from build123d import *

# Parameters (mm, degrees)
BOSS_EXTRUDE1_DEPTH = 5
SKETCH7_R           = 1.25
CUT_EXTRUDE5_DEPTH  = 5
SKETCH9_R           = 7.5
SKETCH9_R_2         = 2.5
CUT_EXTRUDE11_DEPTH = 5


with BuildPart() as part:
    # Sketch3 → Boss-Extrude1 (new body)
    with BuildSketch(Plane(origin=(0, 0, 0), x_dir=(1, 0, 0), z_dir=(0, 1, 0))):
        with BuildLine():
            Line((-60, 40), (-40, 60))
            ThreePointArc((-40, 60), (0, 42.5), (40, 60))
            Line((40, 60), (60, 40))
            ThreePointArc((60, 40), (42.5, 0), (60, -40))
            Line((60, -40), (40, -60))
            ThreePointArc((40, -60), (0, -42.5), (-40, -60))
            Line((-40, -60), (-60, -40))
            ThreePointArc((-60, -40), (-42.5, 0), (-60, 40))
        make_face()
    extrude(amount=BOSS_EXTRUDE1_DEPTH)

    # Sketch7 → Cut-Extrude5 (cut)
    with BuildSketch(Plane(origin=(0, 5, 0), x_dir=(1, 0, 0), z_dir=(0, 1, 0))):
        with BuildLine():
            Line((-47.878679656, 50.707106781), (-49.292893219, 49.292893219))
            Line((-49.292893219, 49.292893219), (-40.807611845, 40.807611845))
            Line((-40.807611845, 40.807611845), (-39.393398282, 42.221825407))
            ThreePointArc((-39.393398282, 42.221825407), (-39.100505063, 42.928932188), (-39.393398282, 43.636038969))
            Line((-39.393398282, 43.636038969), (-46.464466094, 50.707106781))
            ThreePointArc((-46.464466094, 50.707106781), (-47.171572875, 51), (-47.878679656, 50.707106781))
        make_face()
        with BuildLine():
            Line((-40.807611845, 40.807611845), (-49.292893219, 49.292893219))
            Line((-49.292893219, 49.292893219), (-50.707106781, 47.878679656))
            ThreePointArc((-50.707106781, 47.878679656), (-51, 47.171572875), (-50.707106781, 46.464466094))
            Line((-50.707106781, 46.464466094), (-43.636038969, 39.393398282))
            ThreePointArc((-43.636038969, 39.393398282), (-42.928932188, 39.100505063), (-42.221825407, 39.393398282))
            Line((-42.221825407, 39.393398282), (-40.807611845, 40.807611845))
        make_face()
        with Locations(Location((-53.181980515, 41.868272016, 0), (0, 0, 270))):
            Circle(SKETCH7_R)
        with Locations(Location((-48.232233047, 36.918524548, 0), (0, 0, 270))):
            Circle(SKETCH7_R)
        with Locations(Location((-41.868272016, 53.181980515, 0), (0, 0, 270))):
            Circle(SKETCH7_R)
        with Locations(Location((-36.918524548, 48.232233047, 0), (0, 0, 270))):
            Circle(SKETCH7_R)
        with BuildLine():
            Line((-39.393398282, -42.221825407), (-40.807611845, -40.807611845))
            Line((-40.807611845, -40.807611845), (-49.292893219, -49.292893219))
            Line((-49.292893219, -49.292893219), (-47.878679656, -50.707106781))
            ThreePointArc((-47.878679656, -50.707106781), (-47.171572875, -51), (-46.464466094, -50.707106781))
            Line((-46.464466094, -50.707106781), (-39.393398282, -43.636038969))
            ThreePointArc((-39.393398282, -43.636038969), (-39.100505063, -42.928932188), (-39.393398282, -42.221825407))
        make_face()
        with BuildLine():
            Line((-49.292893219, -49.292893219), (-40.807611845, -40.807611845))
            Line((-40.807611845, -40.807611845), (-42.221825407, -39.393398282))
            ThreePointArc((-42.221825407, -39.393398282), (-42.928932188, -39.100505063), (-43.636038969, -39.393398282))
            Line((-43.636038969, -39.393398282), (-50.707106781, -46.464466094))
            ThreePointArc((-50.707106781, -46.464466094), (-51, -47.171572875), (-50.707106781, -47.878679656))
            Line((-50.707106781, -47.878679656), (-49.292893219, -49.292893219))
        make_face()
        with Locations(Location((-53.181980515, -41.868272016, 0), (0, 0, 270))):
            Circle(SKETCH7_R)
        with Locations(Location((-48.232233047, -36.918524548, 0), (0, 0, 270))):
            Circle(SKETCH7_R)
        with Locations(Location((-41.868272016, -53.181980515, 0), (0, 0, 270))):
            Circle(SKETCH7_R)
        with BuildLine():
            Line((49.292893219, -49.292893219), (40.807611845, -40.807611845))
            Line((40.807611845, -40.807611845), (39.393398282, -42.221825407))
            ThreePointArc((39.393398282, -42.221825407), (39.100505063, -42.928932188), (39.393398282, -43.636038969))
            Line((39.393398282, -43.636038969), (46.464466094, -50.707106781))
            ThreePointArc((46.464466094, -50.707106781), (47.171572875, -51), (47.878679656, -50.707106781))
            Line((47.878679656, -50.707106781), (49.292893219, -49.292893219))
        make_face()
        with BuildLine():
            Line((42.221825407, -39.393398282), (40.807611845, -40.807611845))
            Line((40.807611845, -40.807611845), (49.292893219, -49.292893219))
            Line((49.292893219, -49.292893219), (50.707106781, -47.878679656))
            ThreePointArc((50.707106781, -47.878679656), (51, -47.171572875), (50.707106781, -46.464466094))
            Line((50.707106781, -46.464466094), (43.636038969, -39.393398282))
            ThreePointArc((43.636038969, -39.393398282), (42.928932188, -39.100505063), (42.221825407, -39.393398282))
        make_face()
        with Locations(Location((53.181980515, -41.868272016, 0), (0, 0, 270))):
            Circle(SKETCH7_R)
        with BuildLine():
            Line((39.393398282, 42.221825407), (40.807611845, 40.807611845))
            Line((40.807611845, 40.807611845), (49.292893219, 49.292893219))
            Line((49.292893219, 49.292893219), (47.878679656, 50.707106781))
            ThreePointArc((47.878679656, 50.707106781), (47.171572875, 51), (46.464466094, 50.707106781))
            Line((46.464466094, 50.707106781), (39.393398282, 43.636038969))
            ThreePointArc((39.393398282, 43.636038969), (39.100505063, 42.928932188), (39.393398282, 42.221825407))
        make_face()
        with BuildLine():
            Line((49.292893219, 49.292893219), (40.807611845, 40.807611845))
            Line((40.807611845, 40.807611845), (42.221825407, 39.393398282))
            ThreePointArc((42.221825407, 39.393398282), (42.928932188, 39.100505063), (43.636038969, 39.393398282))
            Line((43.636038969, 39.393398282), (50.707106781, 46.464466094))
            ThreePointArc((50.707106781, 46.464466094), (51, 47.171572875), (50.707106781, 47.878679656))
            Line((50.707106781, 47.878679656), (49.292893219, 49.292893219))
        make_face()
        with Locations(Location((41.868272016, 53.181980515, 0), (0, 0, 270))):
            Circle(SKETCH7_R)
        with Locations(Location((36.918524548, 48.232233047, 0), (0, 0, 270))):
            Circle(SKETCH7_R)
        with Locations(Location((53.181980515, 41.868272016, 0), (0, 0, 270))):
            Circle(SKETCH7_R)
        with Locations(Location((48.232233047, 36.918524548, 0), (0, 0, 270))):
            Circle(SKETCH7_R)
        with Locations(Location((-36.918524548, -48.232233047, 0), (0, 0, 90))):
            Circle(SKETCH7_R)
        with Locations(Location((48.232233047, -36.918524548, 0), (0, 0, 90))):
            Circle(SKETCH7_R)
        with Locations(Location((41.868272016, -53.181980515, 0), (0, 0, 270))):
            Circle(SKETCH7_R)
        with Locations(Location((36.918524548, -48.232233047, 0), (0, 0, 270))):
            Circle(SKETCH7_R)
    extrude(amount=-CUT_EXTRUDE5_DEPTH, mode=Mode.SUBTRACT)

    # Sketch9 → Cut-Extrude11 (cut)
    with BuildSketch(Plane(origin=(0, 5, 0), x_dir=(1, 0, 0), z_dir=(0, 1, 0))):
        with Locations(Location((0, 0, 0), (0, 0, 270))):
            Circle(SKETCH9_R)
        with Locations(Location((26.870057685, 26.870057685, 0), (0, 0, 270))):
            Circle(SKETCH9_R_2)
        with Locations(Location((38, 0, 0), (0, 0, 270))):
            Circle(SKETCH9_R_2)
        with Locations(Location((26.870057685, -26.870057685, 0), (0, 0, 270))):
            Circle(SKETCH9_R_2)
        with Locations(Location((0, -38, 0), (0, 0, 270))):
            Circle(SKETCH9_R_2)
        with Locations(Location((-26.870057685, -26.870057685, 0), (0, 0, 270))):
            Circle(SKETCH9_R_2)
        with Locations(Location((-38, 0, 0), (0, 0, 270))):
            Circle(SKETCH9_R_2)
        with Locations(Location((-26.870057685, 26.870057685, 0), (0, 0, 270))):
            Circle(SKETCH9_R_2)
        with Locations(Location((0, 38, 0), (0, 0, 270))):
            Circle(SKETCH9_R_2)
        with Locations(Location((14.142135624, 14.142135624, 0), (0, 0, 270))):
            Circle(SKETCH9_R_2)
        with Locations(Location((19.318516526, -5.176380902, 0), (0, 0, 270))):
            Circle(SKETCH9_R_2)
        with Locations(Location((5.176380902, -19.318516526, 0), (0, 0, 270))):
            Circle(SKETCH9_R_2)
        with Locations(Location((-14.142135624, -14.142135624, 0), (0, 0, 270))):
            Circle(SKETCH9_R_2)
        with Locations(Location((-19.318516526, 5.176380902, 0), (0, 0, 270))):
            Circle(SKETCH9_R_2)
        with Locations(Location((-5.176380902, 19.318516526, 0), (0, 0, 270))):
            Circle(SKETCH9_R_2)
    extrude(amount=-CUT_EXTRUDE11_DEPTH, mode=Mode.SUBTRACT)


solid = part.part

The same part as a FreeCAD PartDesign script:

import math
import FreeCAD as App
import Part
import Sketcher

doc = App.newDocument("Part")
params = doc.addObject("Spreadsheet::Sheet", "Params")
for row, (alias, value) in enumerate([
    ("pad1_length", "5 mm"),
    ("sketch2_radius", "1 mm"),
    ("sketch2_diameter", "2.5 mm"),
    ("sketch2_length", "2 mm"),
    ("sketch2_length2", "10 mm"),
    ("pocket1_length", "5 mm"),
    ("sketch3_diameter", "15 mm"),
    ("sketch3_diameter2", "5 mm"),
    ("pocket2_length", "5 mm"),
], start=1):
    params.set(f"A{row}", alias)
    params.set(f"B{row}", "=" + value)
    params.setAlias(f"B{row}", alias)

body = doc.addObject("PartDesign::Body", "Body")

sketch1 = body.newObject("Sketcher::SketchObject", "Sketch")
sketch1.AttachmentSupport = (doc.getObject("XZ_Plane"), [""])
sketch1.MapMode = "FlatFace"
sketch1.addGeometry([
    Part.LineSegment(App.Vector(-40, -60, 0), App.Vector(-60, -40, 0)),
    Part.ArcOfCircle(Part.Circle(App.Vector(-97, 0, 0), App.Vector(0, 0, 1), 54), math.radians(-47), math.radians(47)),
    Part.LineSegment(App.Vector(-60, 40, 0), App.Vector(-40, 60, 0)),
    Part.ArcOfCircle(Part.Circle(App.Vector(0, 97, 0), App.Vector(0, 0, 1), 54), math.radians(-137), math.radians(-43)),
    Part.LineSegment(App.Vector(40, 60, 0), App.Vector(60, 40, 0)),
    Part.ArcOfCircle(Part.Circle(App.Vector(97, 0, 0), App.Vector(0, 0, 1), 54), math.radians(133), math.radians(227)),
    Part.LineSegment(App.Vector(60, -40, 0), App.Vector(40, -60, 0)),
    Part.ArcOfCircle(Part.Circle(App.Vector(0, -97, 0), App.Vector(0, 0, 1), 54), math.radians(43), math.radians(137)),
], False)
sketch1.addConstraint([
    Sketcher.Constraint("Coincident", 0, 2, 1, 1),
    Sketcher.Constraint("Coincident", 1, 2, 2, 1),
    Sketcher.Constraint("Coincident", 2, 2, 3, 1),
    Sketcher.Constraint("Coincident", 3, 2, 4, 1),
    Sketcher.Constraint("Coincident", 4, 2, 5, 1),
    Sketcher.Constraint("Coincident", 5, 2, 6, 1),
    Sketcher.Constraint("Coincident", 6, 2, 7, 1),
    Sketcher.Constraint("Coincident", 7, 2, 0, 1),
    Sketcher.Constraint("Equal", 1, 3),
    Sketcher.Constraint("Equal", 3, 5),
    Sketcher.Constraint("Equal", 5, 7),
    Sketcher.Constraint("Symmetric", 1, 3, 5, 3, -1, 1),
    Sketcher.Constraint("Symmetric", 3, 3, 7, 3, -1, 1),
    Sketcher.Constraint("Symmetric", 2, 2, 3, 2, -2),
    Sketcher.Constraint("Symmetric", 1, 2, 4, 2, -2),
    Sketcher.Constraint("Perpendicular", 0, 2),
    Sketcher.Constraint("Perpendicular", 2, 4),
    Sketcher.Constraint("Perpendicular", 4, 6),
    Sketcher.Constraint("Horizontal", 0, 2, 5, 2),
    Sketcher.Constraint("Vertical", 0, 2, 1, 2),
    Sketcher.Constraint("DistanceX", 0, 2, -1, 1, 60.0),
    Sketcher.Constraint("DistanceY", 0, 2, -1, 1, 40.0),
    Sketcher.Constraint("DistanceX", 2, 2, -1, 1, 40.0),
    Sketcher.Constraint("Radius", 1, 54.464286),
])
pad1 = body.newObject("PartDesign::Pad", "Pad")
pad1.Profile = sketch1
pad1.setExpression("Length", "Params.pad1_length")
pad1.Reversed = True

sketch2 = body.newObject("Sketcher::SketchObject", "Sketch001")
sketch2.AttachmentSupport = (doc.getObject("XZ_Plane"), [""])
sketch2.MapMode = "FlatFace"
sketch2.AttachmentOffset = App.Placement(App.Vector(0, 0, -5), App.Rotation())
sketch2.addGeometry([
    Part.LineSegment(App.Vector(-47.9, -50.7, 0), App.Vector(-49.3, -49.3, 0)),
    Part.LineSegment(App.Vector(-49.3, -49.3, 0), App.Vector(-50.7, -47.9, 0)),
    Part.ArcOfCircle(Part.Circle(App.Vector(-50, -47.2, 0), App.Vector(0, 0, 1), 1), math.radians(135), math.radians(225)),
    Part.LineSegment(App.Vector(-50.7, -46.5, 0), App.Vector(-43.6, -39.4, 0)),
    Part.ArcOfCircle(Part.Circle(App.Vector(-42.9, -40.1, 0), App.Vector(0, 0, 1), 1), math.radians(45), math.radians(135)),
    Part.LineSegment(App.Vector(-42.2, -39.4, 0), App.Vector(-40.8, -40.8, 0)),
    Part.LineSegment(App.Vector(-40.8, -40.8, 0), App.Vector(-39.4, -42.2, 0)),
    Part.ArcOfCircle(Part.Circle(App.Vector(-40.1, -42.9, 0), App.Vector(0, 0, 1), 1), math.radians(-45), math.radians(45)),
    Part.LineSegment(App.Vector(-39.4, -43.6, 0), App.Vector(-46.5, -50.7, 0)),
    Part.ArcOfCircle(Part.Circle(App.Vector(-47.2, -50, 0), App.Vector(0, 0, 1), 1), math.radians(-135), math.radians(-45)),
    Part.Circle(App.Vector(-53.2, -41.9, 0), App.Vector(0, 0, 1), 1.2),
    Part.Circle(App.Vector(-48.2, -36.9, 0), App.Vector(0, 0, 1), 1.2),
    Part.Circle(App.Vector(-41.9, -53.2, 0), App.Vector(0, 0, 1), 1.2),
    Part.Circle(App.Vector(-36.9, -48.2, 0), App.Vector(0, 0, 1), 1.2),
    Part.LineSegment(App.Vector(-39.4, 42.2, 0), App.Vector(-40.8, 40.8, 0)),
    Part.LineSegment(App.Vector(-40.8, 40.8, 0), App.Vector(-42.2, 39.4, 0)),
    Part.ArcOfCircle(Part.Circle(App.Vector(-42.9, 40.1, 0), App.Vector(0, 0, 1), 1), math.radians(-135), math.radians(-45)),
    Part.LineSegment(App.Vector(-43.6, 39.4, 0), App.Vector(-50.7, 46.5, 0)),
    Part.ArcOfCircle(Part.Circle(App.Vector(-50, 47.2, 0), App.Vector(0, 0, 1), 1), math.radians(135), math.radians(225)),
    Part.LineSegment(App.Vector(-50.7, 47.9, 0), App.Vector(-49.3, 49.3, 0)),
    Part.LineSegment(App.Vector(-49.3, 49.3, 0), App.Vector(-47.9, 50.7, 0)),
    Part.ArcOfCircle(Part.Circle(App.Vector(-47.2, 50, 0), App.Vector(0, 0, 1), 1), math.radians(45), math.radians(135)),
    Part.LineSegment(App.Vector(-46.5, 50.7, 0), App.Vector(-39.4, 43.6, 0)),
    Part.ArcOfCircle(Part.Circle(App.Vector(-40.1, 42.9, 0), App.Vector(0, 0, 1), 1), math.radians(-45), math.radians(45)),
    Part.Circle(App.Vector(-53.2, 41.9, 0), App.Vector(0, 0, 1), 1.2),
    Part.Circle(App.Vector(-48.2, 36.9, 0), App.Vector(0, 0, 1), 1.2),
    Part.Circle(App.Vector(-41.9, 53.2, 0), App.Vector(0, 0, 1), 1.2),
    Part.LineSegment(App.Vector(40.8, 40.8, 0), App.Vector(39.4, 42.2, 0)),
    Part.ArcOfCircle(Part.Circle(App.Vector(40.1, 42.9, 0), App.Vector(0, 0, 1), 1), math.radians(135), math.radians(225)),
    Part.LineSegment(App.Vector(39.4, 43.6, 0), App.Vector(46.5, 50.7, 0)),
    Part.ArcOfCircle(Part.Circle(App.Vector(47.2, 50, 0), App.Vector(0, 0, 1), 1), math.radians(45), math.radians(135)),
    Part.LineSegment(App.Vector(47.9, 50.7, 0), App.Vector(49.3, 49.3, 0)),
    Part.LineSegment(App.Vector(49.3, 49.3, 0), App.Vector(50.7, 47.9, 0)),
    Part.ArcOfCircle(Part.Circle(App.Vector(50, 47.2, 0), App.Vector(0, 0, 1), 1), math.radians(-45), math.radians(45)),
    Part.LineSegment(App.Vector(50.7, 46.5, 0), App.Vector(43.6, 39.4, 0)),
    Part.ArcOfCircle(Part.Circle(App.Vector(42.9, 40.1, 0), App.Vector(0, 0, 1), 1), math.radians(-135), math.radians(-45)),
    Part.LineSegment(App.Vector(42.2, 39.4, 0), App.Vector(40.8, 40.8, 0)),
    Part.Circle(App.Vector(53.2, 41.9, 0), App.Vector(0, 0, 1), 1.2),
    Part.LineSegment(App.Vector(39.4, -42.2, 0), App.Vector(40.8, -40.8, 0)),
    Part.LineSegment(App.Vector(40.8, -40.8, 0), App.Vector(42.2, -39.4, 0)),
    Part.ArcOfCircle(Part.Circle(App.Vector(42.9, -40.1, 0), App.Vector(0, 0, 1), 1), math.radians(45), math.radians(135)),
    Part.LineSegment(App.Vector(43.6, -39.4, 0), App.Vector(50.7, -46.5, 0)),
    Part.ArcOfCircle(Part.Circle(App.Vector(50, -47.2, 0), App.Vector(0, 0, 1), 1), math.radians(-45), math.radians(45)),
    Part.LineSegment(App.Vector(50.7, -47.9, 0), App.Vector(49.3, -49.3, 0)),
    Part.LineSegment(App.Vector(49.3, -49.3, 0), App.Vector(47.9, -50.7, 0)),
    Part.ArcOfCircle(Part.Circle(App.Vector(47.2, -50, 0), App.Vector(0, 0, 1), 1), math.radians(-135), math.radians(-45)),
    Part.LineSegment(App.Vector(46.5, -50.7, 0), App.Vector(39.4, -43.6, 0)),
    Part.ArcOfCircle(Part.Circle(App.Vector(40.1, -42.9, 0), App.Vector(0, 0, 1), 1), math.radians(135), math.radians(225)),
    Part.Circle(App.Vector(41.9, -53.2, 0), App.Vector(0, 0, 1), 1.2),
    Part.Circle(App.Vector(36.9, -48.2, 0), App.Vector(0, 0, 1), 1.2),
    Part.Circle(App.Vector(53.2, -41.9, 0), App.Vector(0, 0, 1), 1.2),
    Part.Circle(App.Vector(48.2, -36.9, 0), App.Vector(0, 0, 1), 1.2),
    Part.Circle(App.Vector(-36.9, 48.2, 0), App.Vector(0, 0, 1), 1.2),
    Part.Circle(App.Vector(48.2, 36.9, 0), App.Vector(0, 0, 1), 1.2),
    Part.Circle(App.Vector(41.9, 53.2, 0), App.Vector(0, 0, 1), 1.2),
    Part.Circle(App.Vector(36.9, 48.2, 0), App.Vector(0, 0, 1), 1.2),
], False)
sketch2.addConstraint([
    Sketcher.Constraint("Coincident", 0, 2, 1, 1),
    Sketcher.Constraint("Tangent", 1, 2, 2, 2),
    Sketcher.Constraint("Tangent", 2, 1, 3, 1),
    Sketcher.Constraint("Tangent", 3, 2, 4, 2),
    Sketcher.Constraint("Tangent", 4, 1, 5, 1),
    Sketcher.Constraint("Coincident", 5, 2, 6, 1),
    Sketcher.Constraint("Tangent", 6, 2, 7, 2),
    Sketcher.Constraint("Tangent", 7, 1, 8, 1),
    Sketcher.Constraint("Tangent", 8, 2, 9, 2),
    Sketcher.Constraint("Tangent", 9, 1, 0, 1),
    Sketcher.Constraint("Coincident", 14, 2, 15, 1),
    Sketcher.Constraint("Tangent", 15, 2, 16, 2),
    Sketcher.Constraint("Tangent", 16, 1, 17, 1),
    Sketcher.Constraint("Tangent", 17, 2, 18, 2),
    Sketcher.Constraint("Tangent", 18, 1, 19, 1),
    Sketcher.Constraint("Coincident", 19, 2, 20, 1),
    Sketcher.Constraint("Tangent", 20, 2, 21, 2),
    Sketcher.Constraint("Tangent", 21, 1, 22, 1),
    Sketcher.Constraint("Tangent", 22, 2, 23, 2),
    Sketcher.Constraint("Tangent", 23, 1, 14, 1),
    Sketcher.Constraint("Tangent", 27, 2, 28, 2),
    Sketcher.Constraint("Tangent", 28, 1, 29, 1),
    Sketcher.Constraint("Tangent", 29, 2, 30, 2),
    Sketcher.Constraint("Tangent", 30, 1, 31, 1),
    Sketcher.Constraint("Coincident", 31, 2, 32, 1),
    Sketcher.Constraint("Tangent", 32, 2, 33, 2),
    Sketcher.Constraint("Tangent", 33, 1, 34, 1),
    Sketcher.Constraint("Tangent", 34, 2, 35, 2),
    Sketcher.Constraint("Tangent", 35, 1, 36, 1),
    Sketcher.Constraint("Coincident", 36, 2, 27, 1),
    Sketcher.Constraint("Coincident", 38, 2, 39, 1),
    Sketcher.Constraint("Tangent", 39, 2, 40, 2),
    Sketcher.Constraint("Tangent", 40, 1, 41, 1),
    Sketcher.Constraint("Tangent", 41, 2, 42, 2),
    Sketcher.Constraint("Tangent", 42, 1, 43, 1),
    Sketcher.Constraint("Coincident", 43, 2, 44, 1),
    Sketcher.Constraint("Tangent", 44, 2, 45, 2),
    Sketcher.Constraint("Tangent", 45, 1, 46, 1),
    Sketcher.Constraint("Tangent", 46, 2, 47, 2),
    Sketcher.Constraint("Tangent", 47, 1, 38, 1),
    Sketcher.Constraint("Equal", 2, 4),
    Sketcher.Constraint("Equal", 4, 7),
    Sketcher.Constraint("Equal", 7, 9),
    Sketcher.Constraint("Equal", 10, 11),
    Sketcher.Constraint("Equal", 11, 12),
    Sketcher.Constraint("Equal", 12, 13),
    Sketcher.Constraint("Equal", 9, 16),
    Sketcher.Constraint("Equal", 16, 18),
    Sketcher.Constraint("Equal", 18, 21),
    Sketcher.Constraint("Equal", 21, 23),
    Sketcher.Constraint("Equal", 13, 24),
    Sketcher.Constraint("Equal", 24, 25),
    Sketcher.Constraint("Equal", 25, 26),
    Sketcher.Constraint("Equal", 23, 28),
    Sketcher.Constraint("Equal", 28, 30),
    Sketcher.Constraint("Equal", 30, 33),
    Sketcher.Constraint("Equal", 33, 35),
    Sketcher.Constraint("Equal", 26, 37),
    Sketcher.Constraint("Equal", 35, 40),
    Sketcher.Constraint("Equal", 40, 42),
    Sketcher.Constraint("Equal", 42, 45),
    Sketcher.Constraint("Equal", 45, 47),
    Sketcher.Constraint("Equal", 37, 48),
    Sketcher.Constraint("Equal", 48, 49),
    Sketcher.Constraint("Equal", 49, 50),
    Sketcher.Constraint("Equal", 50, 51),
    Sketcher.Constraint("Equal", 51, 52),
    Sketcher.Constraint("Equal", 52, 53),
    Sketcher.Constraint("Equal", 53, 54),
    Sketcher.Constraint("Equal", 54, 55),
    Sketcher.Constraint("Symmetric", 7, 3, 28, 3, -1, 1),
    Sketcher.Constraint("Symmetric", 9, 3, 30, 3, -1, 1),
    Sketcher.Constraint("Symmetric", 2, 3, 33, 3, -1, 1),
    Sketcher.Constraint("Symmetric", 4, 3, 35, 3, -1, 1),
    Sketcher.Constraint("Symmetric", 10, 3, 37, 3, -1, 1),
    Sketcher.Constraint("Symmetric", 16, 3, 40, 3, -1, 1),
    Sketcher.Constraint("Symmetric", 18, 3, 42, 3, -1, 1),
    Sketcher.Constraint("Symmetric", 21, 3, 45, 3, -1, 1),
    Sketcher.Constraint("Symmetric", 23, 3, 47, 3, -1, 1),
    Sketcher.Constraint("Symmetric", 26, 3, 48, 3, -1, 1),
    Sketcher.Constraint("Symmetric", 24, 3, 50, 3, -1, 1),
    Sketcher.Constraint("Symmetric", 25, 3, 51, 3, -1, 1),
    Sketcher.Constraint("Symmetric", 49, 3, 52, 3, -1, 1),
    Sketcher.Constraint("Symmetric", 11, 3, 53, 3, -1, 1),
    Sketcher.Constraint("Symmetric", 12, 3, 54, 3, -1, 1),
    Sketcher.Constraint("Symmetric", 13, 3, 55, 3, -1, 1),
    Sketcher.Constraint("Symmetric", 0, 2, 31, 2, -1, 1),
    Sketcher.Constraint("Symmetric", 5, 2, 36, 2, -1, 1),
    Sketcher.Constraint("Symmetric", 14, 2, 38, 2, -1, 1),
    Sketcher.Constraint("Symmetric", 19, 2, 43, 2, -1, 1),
    Sketcher.Constraint("Symmetric", 23, 3, 28, 3, -2),
    Sketcher.Constraint("Symmetric", 21, 3, 30, 3, -2),
    Sketcher.Constraint("Symmetric", 18, 3, 33, 3, -2),
    Sketcher.Constraint("Symmetric", 16, 3, 35, 3, -2),
    Sketcher.Constraint("Symmetric", 24, 3, 37, 3, -2),
    Sketcher.Constraint("Symmetric", 12, 3, 48, 3, -2),
    Sketcher.Constraint("Symmetric", 13, 3, 49, 3, -2),
    Sketcher.Constraint("Symmetric", 11, 3, 51, 3, -2),
    Sketcher.Constraint("Symmetric", 19, 2, 31, 2, -2),
    Sketcher.Constraint("Symmetric", 14, 2, 36, 2, -2),
    Sketcher.Constraint("Parallel", 0, 1),
    Sketcher.Constraint("Perpendicular", 1, 3),
    Sketcher.Constraint("Perpendicular", 3, 5),
    Sketcher.Constraint("Parallel", 5, 6),
    Sketcher.Constraint("Perpendicular", 6, 8),
    Sketcher.Constraint("Parallel", 8, 14),
    Sketcher.Constraint("Equal", 0, 1),
    Sketcher.Constraint("Equal", 1, 5),
    Sketcher.Constraint("Radius", 2, 1.0),
    Sketcher.Constraint("Diameter", 10, 2.5),
    Sketcher.Constraint("Distance", 0, 2.0),
    Sketcher.Constraint("Distance", 3, 10.0),
    Sketcher.Constraint("DistanceX", 2, 3, -1, 1, 50.0),
    Sketcher.Constraint("DistanceY", 9, 3, -1, 1, 50.0),
    Sketcher.Constraint("DistanceX", 10, 3, -1, 1, 53.181981),
    Sketcher.Constraint("DistanceY", 12, 3, -1, 1, 53.181981),
    Sketcher.Constraint("DistanceY", 10, 3, -1, 1, 41.868272),
    Sketcher.Constraint("DistanceX", 11, 3, -1, 1, 48.232233),
    Sketcher.Constraint("DistanceY", 11, 3, -1, 1, 36.918525),
    Sketcher.Constraint("DistanceX", 12, 3, -1, 1, 41.868272),
    Sketcher.Constraint("DistanceX", 13, 3, -1, 1, 36.918525),
    Sketcher.Constraint("DistanceY", 13, 3, -1, 1, 48.232233),
])
sketch2.setExpression("Constraints[108]", "Params.sketch2_radius")
sketch2.setExpression("Constraints[109]", "Params.sketch2_diameter")
sketch2.setExpression("Constraints[110]", "Params.sketch2_length")
sketch2.setExpression("Constraints[111]", "Params.sketch2_length2")
pocket1 = body.newObject("PartDesign::Pocket", "Pocket")
pocket1.Profile = sketch2
pocket1.setExpression("Length", "Params.pocket1_length")
pocket1.Reversed = True

sketch3 = body.newObject("Sketcher::SketchObject", "Sketch002")
sketch3.AttachmentSupport = (doc.getObject("XZ_Plane"), [""])
sketch3.MapMode = "FlatFace"
sketch3.AttachmentOffset = App.Placement(App.Vector(0, 0, -5), App.Rotation())
sketch3.addGeometry([
    Part.Circle(App.Vector(0, 0, 0), App.Vector(0, 0, 1), 7.5),
    Part.Circle(App.Vector(26.9, -26.9, 0), App.Vector(0, 0, 1), 2.5),
    Part.Circle(App.Vector(38, 0, 0), App.Vector(0, 0, 1), 2.5),
    Part.Circle(App.Vector(26.9, 26.9, 0), App.Vector(0, 0, 1), 2.5),
    Part.Circle(App.Vector(0, 38, 0), App.Vector(0, 0, 1), 2.5),
    Part.Circle(App.Vector(-26.9, 26.9, 0), App.Vector(0, 0, 1), 2.5),
    Part.Circle(App.Vector(-38, 0, 0), App.Vector(0, 0, 1), 2.5),
    Part.Circle(App.Vector(-26.9, -26.9, 0), App.Vector(0, 0, 1), 2.5),
    Part.Circle(App.Vector(0, -38, 0), App.Vector(0, 0, 1), 2.5),
    Part.Circle(App.Vector(14.1, -14.1, 0), App.Vector(0, 0, 1), 2.5),
    Part.Circle(App.Vector(19.3, 5.2, 0), App.Vector(0, 0, 1), 2.5),
    Part.Circle(App.Vector(5.2, 19.3, 0), App.Vector(0, 0, 1), 2.5),
    Part.Circle(App.Vector(-14.1, 14.1, 0), App.Vector(0, 0, 1), 2.5),
    Part.Circle(App.Vector(-19.3, -5.2, 0), App.Vector(0, 0, 1), 2.5),
    Part.Circle(App.Vector(-5.2, -19.3, 0), App.Vector(0, 0, 1), 2.5),
], False)
sketch3.addConstraint([
    Sketcher.Constraint("Coincident", 0, 3, -1, 1),
    Sketcher.Constraint("Equal", 1, 2),
    Sketcher.Constraint("Equal", 2, 3),
    Sketcher.Constraint("Equal", 3, 4),
    Sketcher.Constraint("Equal", 4, 5),
    Sketcher.Constraint("Equal", 5, 6),
    Sketcher.Constraint("Equal", 6, 7),
    Sketcher.Constraint("Equal", 7, 8),
    Sketcher.Constraint("Equal", 8, 9),
    Sketcher.Constraint("Equal", 9, 10),
    Sketcher.Constraint("Equal", 10, 11),
    Sketcher.Constraint("Equal", 11, 12),
    Sketcher.Constraint("Equal", 12, 13),
    Sketcher.Constraint("Equal", 13, 14),
    Sketcher.Constraint("Symmetric", 1, 3, 5, 3, -1, 1),
    Sketcher.Constraint("Symmetric", 2, 3, 6, 3, -1, 1),
    Sketcher.Constraint("Symmetric", 3, 3, 7, 3, -1, 1),
    Sketcher.Constraint("Symmetric", 4, 3, 8, 3, -1, 1),
    Sketcher.Constraint("Symmetric", 9, 3, 12, 3, -1, 1),
    Sketcher.Constraint("Symmetric", 10, 3, 13, 3, -1, 1),
    Sketcher.Constraint("Symmetric", 11, 3, 14, 3, -1, 1),
    Sketcher.Constraint("Symmetric", 3, 3, 5, 3, -2),
    Sketcher.Constraint("PointOnObject", 2, 3, -1),
    Sketcher.Constraint("PointOnObject", 4, 3, -2),
    Sketcher.Constraint("Diameter", 0, 15.0),
    Sketcher.Constraint("Diameter", 1, 5.0),
    Sketcher.Constraint("DistanceX", -1, 1, 2, 3, 38.0),
    Sketcher.Constraint("DistanceY", -1, 1, 4, 3, 38.0),
    Sketcher.Constraint("DistanceY", -1, 1, 10, 3, 5.176381),
    Sketcher.Constraint("DistanceX", -1, 1, 11, 3, 5.176381),
    Sketcher.Constraint("DistanceX", 9, 3, 10, 3, 5.176381),
    Sketcher.Constraint("DistanceX", 10, 3, 3, 3, 7.551541),
    Sketcher.Constraint("DistanceY", 1, 3, 10, 3, 32.046439),
    Sketcher.Constraint("DistanceY", 11, 3, 3, 3, 7.551541),
    Sketcher.Constraint("DistanceX", 5, 3, 11, 3, 32.046439),
    Sketcher.Constraint("DistanceY", 12, 3, 11, 3, 5.176381),
])
sketch3.setExpression("Constraints[24]", "Params.sketch3_diameter")
sketch3.setExpression("Constraints[25]", "Params.sketch3_diameter2")
pocket2 = body.newObject("PartDesign::Pocket", "Pocket001")
pocket2.Profile = sketch3
pocket2.setExpression("Length", "Params.pocket2_length")
pocket2.Reversed = True

doc.recompute()
